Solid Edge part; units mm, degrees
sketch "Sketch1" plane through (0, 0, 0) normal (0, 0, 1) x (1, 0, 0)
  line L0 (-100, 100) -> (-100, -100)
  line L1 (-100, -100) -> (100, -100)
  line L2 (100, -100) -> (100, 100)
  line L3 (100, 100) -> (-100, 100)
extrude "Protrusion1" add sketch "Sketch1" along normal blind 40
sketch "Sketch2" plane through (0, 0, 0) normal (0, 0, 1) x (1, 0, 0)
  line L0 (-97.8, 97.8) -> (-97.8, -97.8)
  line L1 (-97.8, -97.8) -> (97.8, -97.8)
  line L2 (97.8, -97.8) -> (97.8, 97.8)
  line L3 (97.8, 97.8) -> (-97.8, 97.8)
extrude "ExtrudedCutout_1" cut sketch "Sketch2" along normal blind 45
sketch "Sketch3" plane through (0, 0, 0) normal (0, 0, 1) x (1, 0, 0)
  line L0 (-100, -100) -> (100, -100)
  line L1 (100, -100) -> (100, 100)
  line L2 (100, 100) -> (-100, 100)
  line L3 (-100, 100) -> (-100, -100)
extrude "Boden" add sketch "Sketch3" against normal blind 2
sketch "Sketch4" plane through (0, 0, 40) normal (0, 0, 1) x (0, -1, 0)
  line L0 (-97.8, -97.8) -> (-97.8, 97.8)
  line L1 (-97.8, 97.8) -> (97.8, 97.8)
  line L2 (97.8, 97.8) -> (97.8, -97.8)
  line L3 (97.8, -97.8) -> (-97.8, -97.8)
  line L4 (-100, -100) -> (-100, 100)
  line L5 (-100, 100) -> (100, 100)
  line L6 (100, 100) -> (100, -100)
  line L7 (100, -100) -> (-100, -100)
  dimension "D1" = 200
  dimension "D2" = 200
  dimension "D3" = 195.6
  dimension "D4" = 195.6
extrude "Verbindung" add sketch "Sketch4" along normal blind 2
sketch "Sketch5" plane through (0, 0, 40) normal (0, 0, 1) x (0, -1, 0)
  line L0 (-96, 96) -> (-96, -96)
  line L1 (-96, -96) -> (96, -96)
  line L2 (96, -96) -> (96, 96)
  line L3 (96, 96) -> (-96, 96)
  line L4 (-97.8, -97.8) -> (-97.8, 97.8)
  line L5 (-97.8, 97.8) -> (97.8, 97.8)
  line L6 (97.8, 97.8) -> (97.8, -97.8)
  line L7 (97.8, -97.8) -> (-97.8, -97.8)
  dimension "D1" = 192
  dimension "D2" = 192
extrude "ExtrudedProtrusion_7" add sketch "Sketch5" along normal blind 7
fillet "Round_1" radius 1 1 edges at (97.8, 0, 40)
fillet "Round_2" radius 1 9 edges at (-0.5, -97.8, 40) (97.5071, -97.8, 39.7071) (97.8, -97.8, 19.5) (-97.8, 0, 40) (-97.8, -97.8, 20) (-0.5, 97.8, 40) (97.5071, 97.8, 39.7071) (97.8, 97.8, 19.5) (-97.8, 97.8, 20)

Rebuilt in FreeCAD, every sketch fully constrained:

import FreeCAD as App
import Part
import Sketcher
from FreeCAD import Vector


def edges_at(feature, points):
    """Names of the edges that pass closest to the given points."""
    edges = feature.Shape.Edges
    near = lambda p: min(range(len(edges)), key=lambda i: edges[i].distToShape(Part.Vertex(*p))[0])
    return sorted({f"Edge{near(p) + 1}" for p in points})


def add_polygon(sketch, points):
    """Adds a closed chain of lines whose ends are joined by coincident constraints."""
    first, n = sketch.GeometryCount, len(points)
    for a, b in zip(points, points[1:] + points[:1]):
        sketch.addGeometry(Part.LineSegment(App.Vector(*a, 0), App.Vector(*b, 0)), False)
    for i in range(n):
        sketch.addConstraint(Sketcher.Constraint("Coincident", first + i, 2, first + (i + 1) % n, 1))

doc = App.newDocument("Part")
body = doc.addObject("PartDesign::Body", "Body")

sketch1 = doc.addObject("Sketcher::SketchObject", "Sketch")
body.addObject(sketch1)
sketch1.AttachmentSupport = (doc.XY_Plane, [""])
sketch1.MapMode = "FlatFace"
add_polygon(sketch1, [(100, 100), (-100, 100), (-100, -100), (100, -100)])
sketch1.addConstraint([
    Sketcher.Constraint("Horizontal", 0),
    Sketcher.Constraint("Vertical", 1),
    Sketcher.Constraint("Horizontal", 2),
    Sketcher.Constraint("Vertical", 3),
    Sketcher.Constraint("Symmetric", 0, 2, 2, 2, -1, 1),
    Sketcher.Constraint("Equal", 2, 1),
    Sketcher.Constraint("DistanceX", 0, 2, 0, 1, 200.0),
])
pad1 = doc.addObject("PartDesign::Pad", "Pad")
body.addObject(pad1)
pad1.Profile = sketch1
pad1.Length = 40

sketch2 = doc.addObject("Sketcher::SketchObject", "Sketch001")
body.addObject(sketch2)
sketch2.AttachmentSupport = (doc.XY_Plane, [""])
sketch2.MapMode = "FlatFace"
add_polygon(sketch2, [(98, 98), (-98, 98), (-98, -98), (98, -98)])
sketch2.addConstraint([
    Sketcher.Constraint("Horizontal", 0),
    Sketcher.Constraint("Vertical", 1),
    Sketcher.Constraint("Horizontal", 2),
    Sketcher.Constraint("Vertical", 3),
    Sketcher.Constraint("Symmetric", 0, 2, 2, 2, -1, 1),
    Sketcher.Constraint("Equal", 2, 1),
    Sketcher.Constraint("DistanceX", 0, 2, 0, 1, 195.6),
])
pocket1 = doc.addObject("PartDesign::Pocket", "Pocket")
body.addObject(pocket1)
pocket1.Profile = sketch2
pocket1.Length = 45
pocket1.Reversed = True

sketch3 = doc.addObject("Sketcher::SketchObject", "Sketch002")
body.addObject(sketch3)
sketch3.AttachmentSupport = (doc.XY_Plane, [""])
sketch3.MapMode = "FlatFace"
add_polygon(sketch3, [(-100, 100), (-100, -100), (100, -100), (100, 100)])
sketch3.addConstraint([
    Sketcher.Constraint("Vertical", 0),
    Sketcher.Constraint("Horizontal", 1),
    Sketcher.Constraint("Vertical", 2),
    Sketcher.Constraint("Horizontal", 3),
    Sketcher.Constraint("Symmetric", 0, 2, 2, 2, -1, 1),
    Sketcher.Constraint("Equal", 3, 0),
    Sketcher.Constraint("DistanceX", 1, 1, 1, 2, 200.0),
])
pad2 = doc.addObject("PartDesign::Pad", "Pad001")
body.addObject(pad2)
pad2.Profile = sketch3
pad2.Length = 2
pad2.Reversed = True

sketch4 = doc.addObject("Sketcher::SketchObject", "Sketch003")
body.addObject(sketch4)
sketch4.AttachmentSupport = (doc.XY_Plane, [""])
sketch4.MapMode = "FlatFace"
sketch4.AttachmentOffset = App.Placement(Vector(0, 0, 40), App.Rotation())
add_polygon(sketch4, [(100, 100), (-100, 100), (-100, -100), (100, -100)])
add_polygon(sketch4, [(-98, -98), (-98, 98), (98, 98), (98, -98)])
sketch4.addConstraint([
    Sketcher.Constraint("Horizontal", 0),
    Sketcher.Constraint("Vertical", 1),
    Sketcher.Constraint("Horizontal", 2),
    Sketcher.Constraint("Vertical", 3),
    Sketcher.Constraint("Vertical", 4),
    Sketcher.Constraint("Horizontal", 5),
    Sketcher.Constraint("Vertical", 6),
    Sketcher.Constraint("Horizontal", 7),
    Sketcher.Constraint("Symmetric", 0, 2, 2, 2, -1, 1),
    Sketcher.Constraint("Symmetric", 4, 2, 6, 2, -1, 1),
    Sketcher.Constraint("Equal", 2, 1),
    Sketcher.Constraint("Equal", 7, 4),
    Sketcher.Constraint("DistanceX", 0, 2, 0, 1, 200.0),
    Sketcher.Constraint("DistanceX", 5, 1, 5, 2, 195.6),
])
pad3 = doc.addObject("PartDesign::Pad", "Pad002")
body.addObject(pad3)
pad3.Profile = sketch4
pad3.Length = 2

sketch5 = doc.addObject("Sketcher::SketchObject", "Sketch004")
body.addObject(sketch5)
sketch5.AttachmentSupport = (doc.XY_Plane, [""])
sketch5.MapMode = "FlatFace"
sketch5.AttachmentOffset = App.Placement(Vector(0, 0, 40), App.Rotation())
add_polygon(sketch5, [(98, 98), (-98, 98), (-98, -98), (98, -98)])
add_polygon(sketch5, [(-96, 96), (96, 96), (96, -96), (-96, -96)])
sketch5.addConstraint([
    Sketcher.Constraint("Horizontal", 0),
    Sketcher.Constraint("Vertical", 1),
    Sketcher.Constraint("Horizontal", 2),
    Sketcher.Constraint("Vertical", 3),
    Sketcher.Constraint("Horizontal", 4),
    Sketcher.Constraint("Vertical", 5),
    Sketcher.Constraint("Horizontal", 6),
    Sketcher.Constraint("Vertical", 7),
    Sketcher.Constraint("Symmetric", 0, 2, 2, 2, -1, 1),
    Sketcher.Constraint("Symmetric", 4, 2, 6, 2, -1, 1),
    Sketcher.Constraint("Equal", 2, 1),
    Sketcher.Constraint("Equal", 6, 5),
    Sketcher.Constraint("DistanceX", 4, 1, 4, 2, 192.0),
    Sketcher.Constraint("DistanceX", 0, 2, 0, 1, 195.6),
])
pad4 = doc.addObject("PartDesign::Pad", "Pad003")
body.addObject(pad4)
pad4.Profile = sketch5
pad4.Length = 7
doc.recompute()

fillet = doc.addObject("PartDesign::Fillet", "Fillet")
body.addObject(fillet)
fillet.Base = (pad4, edges_at(pad4, [(97.8, 0, 40)]))
fillet.Radius = 1
doc.recompute()

fillet2 = doc.addObject("PartDesign::Fillet", "Fillet001")
body.addObject(fillet2)
fillet2.Base = (fillet, edges_at(fillet, [
    (-0.5, -97.8, 40),
    (97.507, -97.8, 39.707),
    (97.8, -97.8, 19.5),
    (-97.8, 0, 40),
    (-97.8, -97.8, 20),
    (-0.5, 97.8, 40),
    (97.507, 97.8, 39.707),
    (97.8, 97.8, 19.5),
    (-97.8, 97.8, 20),
]))
fillet2.Radius = 1

doc.recompute()
